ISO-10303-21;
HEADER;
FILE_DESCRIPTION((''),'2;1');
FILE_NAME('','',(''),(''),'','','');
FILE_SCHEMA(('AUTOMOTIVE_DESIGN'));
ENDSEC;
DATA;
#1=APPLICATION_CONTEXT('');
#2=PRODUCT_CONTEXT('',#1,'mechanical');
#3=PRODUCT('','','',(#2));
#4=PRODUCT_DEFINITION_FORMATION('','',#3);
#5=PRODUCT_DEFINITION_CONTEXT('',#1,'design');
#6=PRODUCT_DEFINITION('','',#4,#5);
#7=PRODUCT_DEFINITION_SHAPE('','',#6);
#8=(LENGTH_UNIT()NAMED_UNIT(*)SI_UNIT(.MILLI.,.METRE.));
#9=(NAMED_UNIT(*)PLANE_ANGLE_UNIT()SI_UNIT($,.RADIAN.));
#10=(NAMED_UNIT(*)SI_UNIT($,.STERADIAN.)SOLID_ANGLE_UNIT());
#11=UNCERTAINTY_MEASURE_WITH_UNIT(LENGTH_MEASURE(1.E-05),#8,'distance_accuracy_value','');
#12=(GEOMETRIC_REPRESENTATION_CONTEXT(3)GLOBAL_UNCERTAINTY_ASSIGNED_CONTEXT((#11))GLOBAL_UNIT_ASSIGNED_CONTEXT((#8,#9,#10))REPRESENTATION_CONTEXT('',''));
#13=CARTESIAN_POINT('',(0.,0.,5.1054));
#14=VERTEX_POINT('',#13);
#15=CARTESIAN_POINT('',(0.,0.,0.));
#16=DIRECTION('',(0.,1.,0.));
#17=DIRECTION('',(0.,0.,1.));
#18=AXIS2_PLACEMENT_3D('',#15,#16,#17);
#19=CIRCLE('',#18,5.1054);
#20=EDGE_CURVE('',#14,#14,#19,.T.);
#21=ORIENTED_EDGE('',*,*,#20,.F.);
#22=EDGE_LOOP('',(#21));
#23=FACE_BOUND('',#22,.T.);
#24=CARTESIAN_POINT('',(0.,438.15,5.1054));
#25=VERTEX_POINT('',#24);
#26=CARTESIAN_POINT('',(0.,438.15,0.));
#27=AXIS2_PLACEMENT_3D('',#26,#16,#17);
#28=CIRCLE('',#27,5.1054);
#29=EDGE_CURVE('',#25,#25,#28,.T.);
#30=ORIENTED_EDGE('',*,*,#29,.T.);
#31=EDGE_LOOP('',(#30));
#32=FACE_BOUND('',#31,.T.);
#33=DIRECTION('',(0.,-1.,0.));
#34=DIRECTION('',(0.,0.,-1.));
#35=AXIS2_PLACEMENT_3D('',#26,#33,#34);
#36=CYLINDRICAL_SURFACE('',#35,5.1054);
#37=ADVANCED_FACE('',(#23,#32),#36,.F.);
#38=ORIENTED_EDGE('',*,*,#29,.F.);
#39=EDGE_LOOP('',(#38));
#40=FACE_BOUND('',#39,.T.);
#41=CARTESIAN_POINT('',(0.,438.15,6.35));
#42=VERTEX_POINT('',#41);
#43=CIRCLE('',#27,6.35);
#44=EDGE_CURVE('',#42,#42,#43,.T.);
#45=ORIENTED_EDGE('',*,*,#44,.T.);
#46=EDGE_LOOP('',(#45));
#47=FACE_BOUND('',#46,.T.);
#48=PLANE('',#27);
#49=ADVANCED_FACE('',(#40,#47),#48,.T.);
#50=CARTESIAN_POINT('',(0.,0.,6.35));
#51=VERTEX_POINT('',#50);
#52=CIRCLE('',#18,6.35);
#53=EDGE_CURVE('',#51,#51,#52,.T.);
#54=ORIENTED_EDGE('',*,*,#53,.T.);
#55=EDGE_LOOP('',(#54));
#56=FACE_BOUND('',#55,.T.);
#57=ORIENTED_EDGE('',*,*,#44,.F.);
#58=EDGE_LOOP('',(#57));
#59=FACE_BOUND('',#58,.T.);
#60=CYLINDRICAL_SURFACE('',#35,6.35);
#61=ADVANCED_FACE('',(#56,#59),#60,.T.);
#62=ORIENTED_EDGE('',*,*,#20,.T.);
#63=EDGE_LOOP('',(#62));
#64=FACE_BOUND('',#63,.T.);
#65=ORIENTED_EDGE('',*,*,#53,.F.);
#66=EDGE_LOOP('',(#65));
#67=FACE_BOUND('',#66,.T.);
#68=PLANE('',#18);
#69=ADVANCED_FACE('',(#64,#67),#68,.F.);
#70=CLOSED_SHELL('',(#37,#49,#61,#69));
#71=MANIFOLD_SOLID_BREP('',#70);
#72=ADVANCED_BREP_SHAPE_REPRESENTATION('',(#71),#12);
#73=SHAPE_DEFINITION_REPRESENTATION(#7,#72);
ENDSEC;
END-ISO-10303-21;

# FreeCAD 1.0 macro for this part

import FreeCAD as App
import Part
import Sketcher
from FreeCAD import Vector
Q = App.Units.Quantity

doc = App.newDocument("Part")
params = doc.addObject("Spreadsheet::Sheet", "Params")
for row, (alias, value) in enumerate([
    ("sketch1_diameter", "0.5 in"),
    ("sketch1_diameter2", "0.402 in"),
    ("pad1_length", "17.25 in"),
], start=1):
    params.set(f"A{row}", alias)
    params.set(f"B{row}", "=" + value)
    params.setAlias(f"B{row}", alias)

body = doc.addObject("PartDesign::Body", "Body")

sketch1 = body.newObject("Sketcher::SketchObject", "Sketch")
sketch1.AttachmentSupport = (doc.getObject("XZ_Plane"), [""])
sketch1.MapMode = "FlatFace"
sketch1.addGeometry([
    Part.Circle(Vector(0, 0, 0), Vector(0, 0, 1), 6),
    Part.Circle(Vector(0, 0, 0), Vector(0, 0, 1), 5),
], False)
sketch1.addConstraint([
    Sketcher.Constraint("Coincident", 0, 3, -1, 1),
    Sketcher.Constraint("Coincident", 1, 3, -1, 1),
    Sketcher.Constraint("Diameter", 0, Q("0.5 in")),
    Sketcher.Constraint("Diameter", 1, Q("0.402 in")),
])
sketch1.setExpression("Constraints[2]", "Params.sketch1_diameter")
sketch1.setExpression("Constraints[3]", "Params.sketch1_diameter2")
pad1 = body.newObject("PartDesign::Pad", "Pad")
pad1.Profile = sketch1
pad1.setExpression("Length", "Params.pad1_length")
pad1.Reversed = True

doc.recompute()
